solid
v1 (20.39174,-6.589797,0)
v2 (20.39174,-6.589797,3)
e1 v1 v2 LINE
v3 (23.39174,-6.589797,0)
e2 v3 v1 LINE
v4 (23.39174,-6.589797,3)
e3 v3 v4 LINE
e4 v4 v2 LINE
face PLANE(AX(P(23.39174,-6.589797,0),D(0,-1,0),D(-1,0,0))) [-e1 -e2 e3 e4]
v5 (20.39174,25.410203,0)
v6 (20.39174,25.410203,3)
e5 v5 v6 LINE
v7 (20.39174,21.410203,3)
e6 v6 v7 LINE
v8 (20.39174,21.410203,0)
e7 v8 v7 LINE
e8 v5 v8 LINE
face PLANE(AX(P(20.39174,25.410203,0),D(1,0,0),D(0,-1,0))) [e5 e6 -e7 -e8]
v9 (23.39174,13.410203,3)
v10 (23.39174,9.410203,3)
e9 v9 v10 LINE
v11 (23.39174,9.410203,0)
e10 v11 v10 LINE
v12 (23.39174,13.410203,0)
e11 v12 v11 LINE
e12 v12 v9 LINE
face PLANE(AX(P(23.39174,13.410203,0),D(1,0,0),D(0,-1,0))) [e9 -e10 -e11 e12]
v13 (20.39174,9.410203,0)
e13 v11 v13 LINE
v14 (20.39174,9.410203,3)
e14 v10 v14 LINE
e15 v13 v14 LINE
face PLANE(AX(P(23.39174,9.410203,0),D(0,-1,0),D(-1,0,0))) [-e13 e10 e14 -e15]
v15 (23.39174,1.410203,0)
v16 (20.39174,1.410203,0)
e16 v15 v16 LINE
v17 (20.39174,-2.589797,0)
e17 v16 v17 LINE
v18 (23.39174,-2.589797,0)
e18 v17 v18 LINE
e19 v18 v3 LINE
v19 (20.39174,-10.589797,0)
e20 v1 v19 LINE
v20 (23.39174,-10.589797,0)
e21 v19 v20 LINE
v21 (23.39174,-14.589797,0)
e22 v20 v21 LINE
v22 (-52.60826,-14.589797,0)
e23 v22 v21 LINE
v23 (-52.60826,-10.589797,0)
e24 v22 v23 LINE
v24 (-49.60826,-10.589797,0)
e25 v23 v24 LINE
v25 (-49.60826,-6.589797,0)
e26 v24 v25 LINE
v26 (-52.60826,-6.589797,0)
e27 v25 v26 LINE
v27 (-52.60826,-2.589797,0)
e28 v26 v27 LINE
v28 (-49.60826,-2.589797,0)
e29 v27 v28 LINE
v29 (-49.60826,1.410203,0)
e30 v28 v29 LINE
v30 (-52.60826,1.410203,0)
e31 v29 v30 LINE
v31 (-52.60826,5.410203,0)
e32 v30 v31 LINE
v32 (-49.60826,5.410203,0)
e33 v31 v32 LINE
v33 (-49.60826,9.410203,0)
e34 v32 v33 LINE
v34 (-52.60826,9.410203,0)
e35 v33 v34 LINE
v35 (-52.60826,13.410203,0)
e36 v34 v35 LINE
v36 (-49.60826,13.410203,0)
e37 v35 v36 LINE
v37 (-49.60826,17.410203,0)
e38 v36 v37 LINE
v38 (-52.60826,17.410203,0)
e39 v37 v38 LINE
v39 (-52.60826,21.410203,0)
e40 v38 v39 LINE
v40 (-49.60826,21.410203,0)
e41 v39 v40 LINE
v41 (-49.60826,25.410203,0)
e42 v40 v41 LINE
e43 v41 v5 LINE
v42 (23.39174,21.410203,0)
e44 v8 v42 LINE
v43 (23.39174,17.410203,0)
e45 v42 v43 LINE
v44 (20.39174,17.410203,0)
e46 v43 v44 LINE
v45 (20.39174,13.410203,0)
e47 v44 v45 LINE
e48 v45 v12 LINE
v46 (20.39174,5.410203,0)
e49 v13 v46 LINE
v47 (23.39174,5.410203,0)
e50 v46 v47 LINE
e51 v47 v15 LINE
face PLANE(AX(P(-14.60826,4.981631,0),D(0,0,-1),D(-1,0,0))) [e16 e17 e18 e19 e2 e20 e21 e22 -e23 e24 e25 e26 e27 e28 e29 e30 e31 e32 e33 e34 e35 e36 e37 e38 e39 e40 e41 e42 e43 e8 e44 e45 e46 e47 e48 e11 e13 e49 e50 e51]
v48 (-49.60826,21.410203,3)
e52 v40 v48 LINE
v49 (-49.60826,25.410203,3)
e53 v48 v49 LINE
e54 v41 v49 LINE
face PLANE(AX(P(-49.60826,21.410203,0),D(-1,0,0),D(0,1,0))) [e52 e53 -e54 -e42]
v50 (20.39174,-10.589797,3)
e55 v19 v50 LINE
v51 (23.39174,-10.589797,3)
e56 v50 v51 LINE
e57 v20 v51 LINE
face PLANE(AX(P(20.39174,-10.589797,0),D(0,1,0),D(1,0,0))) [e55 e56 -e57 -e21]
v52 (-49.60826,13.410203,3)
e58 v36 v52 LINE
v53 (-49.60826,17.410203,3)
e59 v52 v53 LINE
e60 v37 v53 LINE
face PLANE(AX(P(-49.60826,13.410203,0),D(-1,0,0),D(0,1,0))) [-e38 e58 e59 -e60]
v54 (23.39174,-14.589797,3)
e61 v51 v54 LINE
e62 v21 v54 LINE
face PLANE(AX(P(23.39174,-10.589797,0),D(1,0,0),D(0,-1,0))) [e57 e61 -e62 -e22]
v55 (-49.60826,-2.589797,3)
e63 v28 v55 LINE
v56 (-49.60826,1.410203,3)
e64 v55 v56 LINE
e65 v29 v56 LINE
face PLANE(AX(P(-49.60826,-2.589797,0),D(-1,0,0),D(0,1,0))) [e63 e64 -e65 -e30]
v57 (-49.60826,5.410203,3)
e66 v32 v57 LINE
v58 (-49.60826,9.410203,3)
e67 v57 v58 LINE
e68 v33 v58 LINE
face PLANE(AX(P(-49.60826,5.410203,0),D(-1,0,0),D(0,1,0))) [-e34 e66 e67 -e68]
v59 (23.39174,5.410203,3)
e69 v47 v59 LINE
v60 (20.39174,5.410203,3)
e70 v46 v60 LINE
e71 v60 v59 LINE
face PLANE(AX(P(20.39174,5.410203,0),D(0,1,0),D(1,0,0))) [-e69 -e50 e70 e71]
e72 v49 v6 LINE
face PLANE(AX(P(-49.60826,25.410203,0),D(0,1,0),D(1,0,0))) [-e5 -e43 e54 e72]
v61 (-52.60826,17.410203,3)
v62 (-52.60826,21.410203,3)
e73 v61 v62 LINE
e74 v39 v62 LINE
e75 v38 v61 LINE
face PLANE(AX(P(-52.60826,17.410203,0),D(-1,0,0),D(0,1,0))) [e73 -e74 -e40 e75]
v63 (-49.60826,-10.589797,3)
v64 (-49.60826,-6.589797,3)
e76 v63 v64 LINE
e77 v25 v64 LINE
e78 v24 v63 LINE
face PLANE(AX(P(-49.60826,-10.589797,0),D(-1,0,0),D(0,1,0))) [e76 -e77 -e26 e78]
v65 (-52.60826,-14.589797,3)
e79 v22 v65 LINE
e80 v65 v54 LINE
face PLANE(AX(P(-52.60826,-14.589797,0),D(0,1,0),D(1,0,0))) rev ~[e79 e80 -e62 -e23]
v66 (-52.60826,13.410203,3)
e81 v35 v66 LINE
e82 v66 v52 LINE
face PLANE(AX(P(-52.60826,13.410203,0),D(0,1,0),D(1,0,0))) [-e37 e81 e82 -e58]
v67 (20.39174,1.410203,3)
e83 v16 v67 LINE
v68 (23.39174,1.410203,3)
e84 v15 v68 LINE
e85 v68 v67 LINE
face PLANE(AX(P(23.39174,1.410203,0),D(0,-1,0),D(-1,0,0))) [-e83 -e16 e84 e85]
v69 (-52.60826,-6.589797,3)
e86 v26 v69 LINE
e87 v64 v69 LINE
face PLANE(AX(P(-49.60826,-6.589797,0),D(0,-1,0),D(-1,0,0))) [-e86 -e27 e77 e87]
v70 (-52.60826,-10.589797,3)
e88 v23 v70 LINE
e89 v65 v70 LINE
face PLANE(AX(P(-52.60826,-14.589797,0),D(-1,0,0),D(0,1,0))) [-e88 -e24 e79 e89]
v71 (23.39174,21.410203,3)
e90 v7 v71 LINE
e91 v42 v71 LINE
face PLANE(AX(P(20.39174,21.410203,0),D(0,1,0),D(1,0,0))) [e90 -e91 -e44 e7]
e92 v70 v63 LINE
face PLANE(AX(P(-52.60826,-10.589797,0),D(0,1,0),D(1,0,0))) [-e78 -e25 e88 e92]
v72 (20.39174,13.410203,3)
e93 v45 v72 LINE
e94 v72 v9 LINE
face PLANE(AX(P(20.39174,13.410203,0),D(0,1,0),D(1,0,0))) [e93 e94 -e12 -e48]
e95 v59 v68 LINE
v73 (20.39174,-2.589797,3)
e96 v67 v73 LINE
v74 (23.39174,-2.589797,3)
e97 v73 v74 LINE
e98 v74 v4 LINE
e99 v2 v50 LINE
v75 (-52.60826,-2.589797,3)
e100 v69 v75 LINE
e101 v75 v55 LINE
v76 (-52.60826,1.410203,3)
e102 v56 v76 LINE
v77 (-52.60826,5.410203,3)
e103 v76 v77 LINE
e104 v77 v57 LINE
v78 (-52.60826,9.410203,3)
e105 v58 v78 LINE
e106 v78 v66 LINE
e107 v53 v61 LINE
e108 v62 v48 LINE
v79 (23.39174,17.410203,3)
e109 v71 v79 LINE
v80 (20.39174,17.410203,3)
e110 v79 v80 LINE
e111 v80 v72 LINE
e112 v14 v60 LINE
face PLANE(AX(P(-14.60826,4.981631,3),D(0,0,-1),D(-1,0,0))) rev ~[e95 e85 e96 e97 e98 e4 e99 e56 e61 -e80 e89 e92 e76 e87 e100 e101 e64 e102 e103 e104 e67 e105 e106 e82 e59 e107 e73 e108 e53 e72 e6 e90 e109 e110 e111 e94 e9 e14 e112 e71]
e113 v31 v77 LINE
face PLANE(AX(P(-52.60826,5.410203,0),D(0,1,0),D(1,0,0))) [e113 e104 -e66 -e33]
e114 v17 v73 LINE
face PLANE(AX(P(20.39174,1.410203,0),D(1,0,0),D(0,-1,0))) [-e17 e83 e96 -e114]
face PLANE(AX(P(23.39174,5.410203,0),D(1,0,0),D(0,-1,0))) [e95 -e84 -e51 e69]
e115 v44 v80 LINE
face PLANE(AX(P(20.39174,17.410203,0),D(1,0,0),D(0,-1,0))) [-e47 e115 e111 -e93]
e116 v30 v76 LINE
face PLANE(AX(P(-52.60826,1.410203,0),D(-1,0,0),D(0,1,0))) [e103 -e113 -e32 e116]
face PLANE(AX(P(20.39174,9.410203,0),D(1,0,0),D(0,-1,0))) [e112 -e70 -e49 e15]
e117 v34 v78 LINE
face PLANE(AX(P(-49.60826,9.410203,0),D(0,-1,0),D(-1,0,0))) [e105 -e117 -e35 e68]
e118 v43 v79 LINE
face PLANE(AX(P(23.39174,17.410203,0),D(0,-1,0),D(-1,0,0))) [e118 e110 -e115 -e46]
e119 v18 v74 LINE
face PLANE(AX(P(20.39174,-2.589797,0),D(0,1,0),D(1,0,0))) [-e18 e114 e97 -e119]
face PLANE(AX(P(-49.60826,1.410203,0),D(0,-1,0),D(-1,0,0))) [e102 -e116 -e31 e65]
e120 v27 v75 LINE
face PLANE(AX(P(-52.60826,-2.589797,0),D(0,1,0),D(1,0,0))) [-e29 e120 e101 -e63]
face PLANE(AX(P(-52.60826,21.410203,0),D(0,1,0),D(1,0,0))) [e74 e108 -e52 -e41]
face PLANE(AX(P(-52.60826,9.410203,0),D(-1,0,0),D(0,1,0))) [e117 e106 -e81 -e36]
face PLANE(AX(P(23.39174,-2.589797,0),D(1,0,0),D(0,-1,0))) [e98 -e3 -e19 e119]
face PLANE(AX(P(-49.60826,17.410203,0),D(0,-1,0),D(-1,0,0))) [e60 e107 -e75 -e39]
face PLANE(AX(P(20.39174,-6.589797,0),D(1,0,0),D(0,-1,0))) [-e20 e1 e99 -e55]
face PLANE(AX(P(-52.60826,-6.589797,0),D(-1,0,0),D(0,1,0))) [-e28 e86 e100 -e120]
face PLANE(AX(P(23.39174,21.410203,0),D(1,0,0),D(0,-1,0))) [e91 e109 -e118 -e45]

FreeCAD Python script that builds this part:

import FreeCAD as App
import Part
import Sketcher

V = App.Vector


def add_polygon(sketch, points):
    """Adds a closed chain of lines whose ends are joined by coincident constraints."""
    first, n = sketch.GeometryCount, len(points)
    for a, b in zip(points, points[1:] + points[:1]):
        sketch.addGeometry(Part.LineSegment(App.Vector(*a, 0), App.Vector(*b, 0)), False)
    for i in range(n):
        sketch.addConstraint(Sketcher.Constraint("Coincident", first + i, 2, first + (i + 1) % n, 1))

doc = App.newDocument("Part")
params = doc.addObject("Spreadsheet::Sheet", "Params")
for row, (alias, value) in enumerate([
    ("sketch1_width", "70 mm"),
    ("sketch1_width2", "3 mm"),
    ("sketch1_height", "4 mm"),
    ("pad1_length", "3 mm"),
], start=1):
    params.set(f"A{row}", alias)
    params.set(f"B{row}", "=" + value)
    params.setAlias(f"B{row}", alias)

body = doc.addObject("PartDesign::Body", "Body")

sketch1 = body.newObject("Sketcher::SketchObject", "Sketch")
sketch1.AttachmentSupport = (doc.getObject("XY_Plane"), [""])
sketch1.MapMode = "FlatFace"
add_polygon(sketch1, [(20.4, 25.4), (-49.6, 25.4), (-49.6, 21.4), (-52.6, 21.4), (-52.6, 17.4), (-49.6, 17.4), (-49.6, 13.4), (-52.6, 13.4), (-52.6, 9.4), (-49.6, 9.4), (-49.6, 5.4), (-52.6, 5.4), (-52.6, 1.4), (-49.6, 1.4), (-49.6, -2.6), (-52.6, -2.6), (-52.6, -6.6), (-49.6, -6.6), (-49.6, -10.6), (-52.6, -10.6), (-52.6, -14.6), (23.4, -14.6), (23.4, -10.6), (20.4, -10.6), (20.4, -6.6), (23.4, -6.6), (23.4, -2.6), (20.4, -2.6), (20.4, 1.4), (23.4, 1.4), (23.4, 5.4), (20.4, 5.4), (20.4, 9.4), (23.4, 9.4), (23.4, 13.4), (20.4, 13.4), (20.4, 17.4), (23.4, 17.4), (23.4, 21.4), (20.4, 21.4)])
sketch1.addConstraint([
    Sketcher.Constraint("Horizontal", 0),
    Sketcher.Constraint("Vertical", 1),
    Sketcher.Constraint("Horizontal", 2),
    Sketcher.Constraint("Vertical", 3),
    Sketcher.Constraint("Horizontal", 4),
    Sketcher.Constraint("Vertical", 5),
    Sketcher.Constraint("Horizontal", 6),
    Sketcher.Constraint("Vertical", 7),
    Sketcher.Constraint("Horizontal", 8),
    Sketcher.Constraint("Vertical", 9),
    Sketcher.Constraint("Horizontal", 10),
    Sketcher.Constraint("Vertical", 11),
    Sketcher.Constraint("Horizontal", 12),
    Sketcher.Constraint("Vertical", 13),
    Sketcher.Constraint("Horizontal", 14),
    Sketcher.Constraint("Vertical", 15),
    Sketcher.Constraint("Horizontal", 16),
    Sketcher.Constraint("Vertical", 17),
    Sketcher.Constraint("Horizontal", 18),
    Sketcher.Constraint("Vertical", 19),
    Sketcher.Constraint("Horizontal", 20),
    Sketcher.Constraint("Vertical", 21),
    Sketcher.Constraint("Horizontal", 22),
    Sketcher.Constraint("Vertical", 23),
    Sketcher.Constraint("Horizontal", 24),
    Sketcher.Constraint("Vertical", 25),
    Sketcher.Constraint("Horizontal", 26),
    Sketcher.Constraint("Vertical", 27),
    Sketcher.Constraint("Horizontal", 28),
    Sketcher.Constraint("Vertical", 29),
    Sketcher.Constraint("Horizontal", 30),
    Sketcher.Constraint("Vertical", 31),
    Sketcher.Constraint("Horizontal", 32),
    Sketcher.Constraint("Vertical", 33),
    Sketcher.Constraint("Horizontal", 34),
    Sketcher.Constraint("Vertical", 35),
    Sketcher.Constraint("Horizontal", 36),
    Sketcher.Constraint("Vertical", 37),
    Sketcher.Constraint("Horizontal", 38),
    Sketcher.Constraint("Vertical", 39),
    Sketcher.Constraint("Horizontal", 18, 2, 21, 2),
    Sketcher.Constraint("Horizontal", 16, 2, 23, 2),
    Sketcher.Constraint("Horizontal", 14, 2, 25, 2),
    Sketcher.Constraint("Horizontal", 12, 2, 27, 2),
    Sketcher.Constraint("Horizontal", 10, 2, 29, 2),
    Sketcher.Constraint("Horizontal", 8, 2, 31, 2),
    Sketcher.Constraint("Horizontal", 6, 2, 33, 2),
    Sketcher.Constraint("Horizontal", 4, 2, 35, 2),
    Sketcher.Constraint("Horizontal", 2, 2, 37, 2),
    Sketcher.Constraint("Vertical", 1, 2, 4, 2),
    Sketcher.Constraint("Vertical", 3, 2, 6, 2),
    Sketcher.Constraint("Vertical", 5, 2, 8, 2),
    Sketcher.Constraint("Vertical", 7, 2, 10, 2),
    Sketcher.Constraint("Vertical", 9, 2, 12, 2),
    Sketcher.Constraint("Vertical", 11, 2, 14, 2),
    Sketcher.Constraint("Vertical", 13, 2, 16, 2),
    Sketcher.Constraint("Vertical", 15, 2, 18, 2),
    Sketcher.Constraint("Vertical", 21, 2, 24, 2),
    Sketcher.Constraint("Vertical", 23, 2, 26, 2),
    Sketcher.Constraint("Vertical", 25, 2, 28, 2),
    Sketcher.Constraint("Vertical", 27, 2, 30, 2),
    Sketcher.Constraint("Vertical", 29, 2, 32, 2),
    Sketcher.Constraint("Vertical", 31, 2, 34, 2),
    Sketcher.Constraint("Vertical", 33, 2, 36, 2),
    Sketcher.Constraint("Vertical", 35, 2, 38, 2),
    Sketcher.Constraint("Equal", 18, 22),
    Sketcher.Constraint("Equal", 1, 3),
    Sketcher.Constraint("Equal", 3, 5),
    Sketcher.Constraint("Equal", 5, 7),
    Sketcher.Constraint("Equal", 7, 9),
    Sketcher.Constraint("Equal", 9, 11),
    Sketcher.Constraint("Equal", 11, 13),
    Sketcher.Constraint("Equal", 13, 15),
    Sketcher.Constraint("Equal", 15, 17),
    Sketcher.Constraint("Equal", 17, 19),
    Sketcher.Constraint("DistanceX", 0, 2, 0, 1, 70.0),
    Sketcher.Constraint("DistanceX", 2, 2, 2, 1, 3.0),
    Sketcher.Constraint("DistanceY", 1, 2, 1, 1, 4.0),
    Sketcher.Constraint("DistanceX", 0, 2, -1, 1, 49.60826),
    Sketcher.Constraint("DistanceY", -1, 1, 0, 2, 25.410203),
])
sketch1.setExpression("Constraints[115]", "Params.sketch1_width")
sketch1.setExpression("Constraints[116]", "Params.sketch1_width2")
sketch1.setExpression("Constraints[117]", "Params.sketch1_height")
pad1 = body.newObject("PartDesign::Pad", "Pad")
pad1.Profile = sketch1
pad1.setExpression("Length", "Params.pad1_length")

doc.recompute()
